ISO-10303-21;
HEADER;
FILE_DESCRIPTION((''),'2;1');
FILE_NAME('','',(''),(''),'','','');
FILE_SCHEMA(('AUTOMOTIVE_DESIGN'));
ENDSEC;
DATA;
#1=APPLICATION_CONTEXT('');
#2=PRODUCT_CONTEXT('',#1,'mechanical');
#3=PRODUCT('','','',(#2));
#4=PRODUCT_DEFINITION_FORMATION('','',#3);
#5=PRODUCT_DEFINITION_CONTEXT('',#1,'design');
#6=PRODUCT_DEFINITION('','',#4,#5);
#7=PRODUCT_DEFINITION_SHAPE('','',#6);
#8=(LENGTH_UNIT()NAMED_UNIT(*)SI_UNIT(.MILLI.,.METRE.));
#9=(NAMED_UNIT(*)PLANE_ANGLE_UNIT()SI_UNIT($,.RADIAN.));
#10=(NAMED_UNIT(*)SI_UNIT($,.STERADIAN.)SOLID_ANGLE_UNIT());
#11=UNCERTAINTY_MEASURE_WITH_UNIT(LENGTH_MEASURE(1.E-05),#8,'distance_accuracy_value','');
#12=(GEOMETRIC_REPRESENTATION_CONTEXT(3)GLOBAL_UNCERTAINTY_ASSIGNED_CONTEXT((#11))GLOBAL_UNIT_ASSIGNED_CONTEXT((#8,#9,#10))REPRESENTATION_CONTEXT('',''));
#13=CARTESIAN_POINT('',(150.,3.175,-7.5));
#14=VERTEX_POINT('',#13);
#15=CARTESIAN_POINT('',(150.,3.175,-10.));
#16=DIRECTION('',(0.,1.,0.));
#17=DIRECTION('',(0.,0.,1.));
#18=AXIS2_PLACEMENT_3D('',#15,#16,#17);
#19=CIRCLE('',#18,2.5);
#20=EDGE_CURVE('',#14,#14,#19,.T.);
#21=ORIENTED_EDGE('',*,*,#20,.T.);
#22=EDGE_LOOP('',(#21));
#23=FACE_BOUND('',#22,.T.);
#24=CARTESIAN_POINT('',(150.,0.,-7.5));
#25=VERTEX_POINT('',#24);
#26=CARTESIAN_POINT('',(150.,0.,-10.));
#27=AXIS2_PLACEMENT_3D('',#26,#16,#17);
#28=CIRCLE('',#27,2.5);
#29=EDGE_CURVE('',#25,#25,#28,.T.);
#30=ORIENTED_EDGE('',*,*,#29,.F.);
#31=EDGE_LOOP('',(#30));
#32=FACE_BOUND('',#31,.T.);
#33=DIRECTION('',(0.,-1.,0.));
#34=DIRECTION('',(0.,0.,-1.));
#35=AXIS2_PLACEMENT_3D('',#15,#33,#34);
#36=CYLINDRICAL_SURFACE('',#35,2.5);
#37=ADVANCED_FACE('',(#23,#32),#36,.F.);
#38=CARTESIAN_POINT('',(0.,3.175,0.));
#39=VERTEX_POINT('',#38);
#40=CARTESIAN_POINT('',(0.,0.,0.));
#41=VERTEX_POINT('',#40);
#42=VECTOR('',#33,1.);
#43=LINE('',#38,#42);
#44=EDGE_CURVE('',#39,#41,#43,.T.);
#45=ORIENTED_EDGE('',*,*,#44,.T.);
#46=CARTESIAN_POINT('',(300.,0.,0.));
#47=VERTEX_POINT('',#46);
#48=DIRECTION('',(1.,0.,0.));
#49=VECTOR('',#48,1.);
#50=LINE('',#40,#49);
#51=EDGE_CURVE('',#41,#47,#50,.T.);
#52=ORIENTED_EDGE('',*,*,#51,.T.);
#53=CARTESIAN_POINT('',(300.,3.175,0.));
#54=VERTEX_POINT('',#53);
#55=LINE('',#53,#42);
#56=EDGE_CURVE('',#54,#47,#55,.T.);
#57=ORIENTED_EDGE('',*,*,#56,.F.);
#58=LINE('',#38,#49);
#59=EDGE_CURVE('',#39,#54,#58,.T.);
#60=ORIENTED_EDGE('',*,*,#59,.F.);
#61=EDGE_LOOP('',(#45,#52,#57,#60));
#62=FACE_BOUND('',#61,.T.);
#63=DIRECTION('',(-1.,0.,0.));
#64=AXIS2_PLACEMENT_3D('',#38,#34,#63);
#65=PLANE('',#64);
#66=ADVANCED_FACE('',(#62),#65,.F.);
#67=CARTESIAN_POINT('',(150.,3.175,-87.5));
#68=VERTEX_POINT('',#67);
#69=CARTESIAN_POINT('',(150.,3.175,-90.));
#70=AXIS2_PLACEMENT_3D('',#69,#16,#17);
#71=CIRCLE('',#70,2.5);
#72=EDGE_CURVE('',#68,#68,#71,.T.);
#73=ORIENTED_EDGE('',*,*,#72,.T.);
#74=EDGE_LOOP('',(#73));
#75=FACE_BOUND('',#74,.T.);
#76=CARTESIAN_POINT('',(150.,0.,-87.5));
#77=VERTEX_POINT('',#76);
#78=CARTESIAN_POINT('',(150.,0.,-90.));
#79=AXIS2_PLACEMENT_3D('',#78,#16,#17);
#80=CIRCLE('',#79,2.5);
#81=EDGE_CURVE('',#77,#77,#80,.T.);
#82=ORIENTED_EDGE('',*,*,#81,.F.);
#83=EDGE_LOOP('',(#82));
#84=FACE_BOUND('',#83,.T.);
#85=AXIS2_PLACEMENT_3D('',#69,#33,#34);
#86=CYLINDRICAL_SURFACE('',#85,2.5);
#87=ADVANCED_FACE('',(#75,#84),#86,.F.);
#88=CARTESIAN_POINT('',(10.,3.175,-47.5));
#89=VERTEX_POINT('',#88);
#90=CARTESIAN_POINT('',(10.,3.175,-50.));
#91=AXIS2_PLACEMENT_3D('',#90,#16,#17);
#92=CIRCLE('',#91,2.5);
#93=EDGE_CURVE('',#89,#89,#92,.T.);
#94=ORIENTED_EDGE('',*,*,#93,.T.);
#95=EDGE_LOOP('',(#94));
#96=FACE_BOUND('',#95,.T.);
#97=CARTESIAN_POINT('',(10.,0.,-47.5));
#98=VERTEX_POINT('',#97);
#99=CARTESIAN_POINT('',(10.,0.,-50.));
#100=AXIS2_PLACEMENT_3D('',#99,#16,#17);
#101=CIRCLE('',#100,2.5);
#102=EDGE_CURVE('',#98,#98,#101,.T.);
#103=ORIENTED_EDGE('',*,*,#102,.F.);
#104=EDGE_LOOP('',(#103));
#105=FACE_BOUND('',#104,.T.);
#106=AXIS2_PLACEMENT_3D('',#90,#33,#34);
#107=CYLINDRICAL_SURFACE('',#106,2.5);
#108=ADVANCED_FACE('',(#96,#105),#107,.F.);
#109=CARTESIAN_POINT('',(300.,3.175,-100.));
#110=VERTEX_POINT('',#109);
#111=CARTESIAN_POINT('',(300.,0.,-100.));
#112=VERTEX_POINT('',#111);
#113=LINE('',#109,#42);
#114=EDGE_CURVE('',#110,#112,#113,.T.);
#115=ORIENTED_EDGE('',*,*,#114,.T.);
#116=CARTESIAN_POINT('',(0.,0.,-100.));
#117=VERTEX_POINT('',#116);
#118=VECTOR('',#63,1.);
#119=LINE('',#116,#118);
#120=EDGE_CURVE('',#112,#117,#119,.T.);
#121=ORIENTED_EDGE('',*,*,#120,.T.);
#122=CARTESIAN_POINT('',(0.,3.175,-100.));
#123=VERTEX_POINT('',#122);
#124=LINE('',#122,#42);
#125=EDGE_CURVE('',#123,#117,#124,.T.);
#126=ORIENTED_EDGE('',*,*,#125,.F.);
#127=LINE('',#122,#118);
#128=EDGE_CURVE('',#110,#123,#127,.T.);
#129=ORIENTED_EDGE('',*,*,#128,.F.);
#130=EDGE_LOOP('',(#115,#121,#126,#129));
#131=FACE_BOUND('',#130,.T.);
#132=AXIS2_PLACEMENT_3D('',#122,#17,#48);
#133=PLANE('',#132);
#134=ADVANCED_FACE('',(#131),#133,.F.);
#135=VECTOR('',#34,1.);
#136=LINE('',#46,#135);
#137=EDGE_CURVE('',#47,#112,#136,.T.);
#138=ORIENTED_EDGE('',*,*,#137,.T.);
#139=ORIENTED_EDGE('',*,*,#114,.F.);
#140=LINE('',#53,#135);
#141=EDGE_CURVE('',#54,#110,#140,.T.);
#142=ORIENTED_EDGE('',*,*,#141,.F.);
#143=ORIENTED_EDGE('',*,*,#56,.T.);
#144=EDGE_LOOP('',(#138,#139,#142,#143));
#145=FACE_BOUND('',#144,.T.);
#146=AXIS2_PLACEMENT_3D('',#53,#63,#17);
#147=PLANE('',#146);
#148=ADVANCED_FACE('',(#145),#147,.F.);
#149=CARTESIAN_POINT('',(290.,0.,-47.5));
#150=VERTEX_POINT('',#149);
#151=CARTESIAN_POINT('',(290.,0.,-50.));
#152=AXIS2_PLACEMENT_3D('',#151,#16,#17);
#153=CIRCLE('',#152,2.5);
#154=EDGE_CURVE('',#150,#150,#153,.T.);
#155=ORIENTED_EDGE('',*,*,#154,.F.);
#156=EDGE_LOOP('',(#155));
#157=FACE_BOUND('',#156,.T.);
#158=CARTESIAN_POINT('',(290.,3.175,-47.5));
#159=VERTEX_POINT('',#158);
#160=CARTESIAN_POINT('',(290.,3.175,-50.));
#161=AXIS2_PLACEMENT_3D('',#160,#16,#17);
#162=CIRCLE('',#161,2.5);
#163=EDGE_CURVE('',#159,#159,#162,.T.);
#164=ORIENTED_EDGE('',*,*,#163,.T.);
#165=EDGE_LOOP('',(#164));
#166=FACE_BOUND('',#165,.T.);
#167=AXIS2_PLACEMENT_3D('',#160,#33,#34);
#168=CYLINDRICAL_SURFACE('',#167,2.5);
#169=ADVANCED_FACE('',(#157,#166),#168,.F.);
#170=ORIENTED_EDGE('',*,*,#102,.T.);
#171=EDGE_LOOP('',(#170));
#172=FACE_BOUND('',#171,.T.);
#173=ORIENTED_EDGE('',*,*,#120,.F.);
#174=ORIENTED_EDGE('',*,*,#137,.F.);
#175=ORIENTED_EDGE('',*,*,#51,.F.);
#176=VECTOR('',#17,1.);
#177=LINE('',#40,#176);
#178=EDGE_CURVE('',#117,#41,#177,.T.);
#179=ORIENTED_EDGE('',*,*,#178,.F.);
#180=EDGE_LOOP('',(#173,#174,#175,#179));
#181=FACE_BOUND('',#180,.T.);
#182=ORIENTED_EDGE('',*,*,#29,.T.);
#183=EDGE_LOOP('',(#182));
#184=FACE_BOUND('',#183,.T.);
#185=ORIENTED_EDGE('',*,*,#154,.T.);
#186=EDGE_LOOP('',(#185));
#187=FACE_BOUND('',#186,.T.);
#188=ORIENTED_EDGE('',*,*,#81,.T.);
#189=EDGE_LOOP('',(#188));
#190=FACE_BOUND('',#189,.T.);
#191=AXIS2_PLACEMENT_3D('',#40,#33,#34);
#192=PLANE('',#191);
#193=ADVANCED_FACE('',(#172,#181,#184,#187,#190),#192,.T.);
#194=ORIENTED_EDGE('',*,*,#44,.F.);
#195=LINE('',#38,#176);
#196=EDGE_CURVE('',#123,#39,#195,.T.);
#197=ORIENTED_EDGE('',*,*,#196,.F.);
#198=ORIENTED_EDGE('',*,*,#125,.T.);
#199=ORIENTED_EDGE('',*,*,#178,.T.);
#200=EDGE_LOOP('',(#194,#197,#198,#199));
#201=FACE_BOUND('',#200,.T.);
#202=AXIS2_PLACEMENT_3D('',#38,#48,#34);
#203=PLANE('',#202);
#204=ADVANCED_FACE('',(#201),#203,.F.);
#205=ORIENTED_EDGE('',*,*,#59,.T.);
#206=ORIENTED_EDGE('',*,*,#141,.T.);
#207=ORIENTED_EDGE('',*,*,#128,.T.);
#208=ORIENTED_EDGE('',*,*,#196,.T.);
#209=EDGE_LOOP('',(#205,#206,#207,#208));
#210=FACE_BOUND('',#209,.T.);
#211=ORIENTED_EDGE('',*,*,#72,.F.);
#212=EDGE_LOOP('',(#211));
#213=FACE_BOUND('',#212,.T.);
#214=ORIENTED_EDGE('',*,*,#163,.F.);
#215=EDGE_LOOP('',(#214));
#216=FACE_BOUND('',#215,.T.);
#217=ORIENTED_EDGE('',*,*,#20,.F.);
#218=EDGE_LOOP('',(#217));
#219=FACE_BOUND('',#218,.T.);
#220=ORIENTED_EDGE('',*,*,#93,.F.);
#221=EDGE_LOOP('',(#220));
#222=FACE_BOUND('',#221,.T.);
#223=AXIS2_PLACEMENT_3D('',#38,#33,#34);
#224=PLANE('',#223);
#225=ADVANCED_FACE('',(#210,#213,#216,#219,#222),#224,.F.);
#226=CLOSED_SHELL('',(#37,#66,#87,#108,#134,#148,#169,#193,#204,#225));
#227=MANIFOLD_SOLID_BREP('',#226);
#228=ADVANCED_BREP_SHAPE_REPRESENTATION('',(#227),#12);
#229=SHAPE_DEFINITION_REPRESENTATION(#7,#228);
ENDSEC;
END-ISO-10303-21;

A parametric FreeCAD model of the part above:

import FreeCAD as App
import Part
import Sketcher


def add_polygon(sketch, points):
    """Adds a closed chain of lines whose ends are joined by coincident constraints."""
    first, n = sketch.GeometryCount, len(points)
    for a, b in zip(points, points[1:] + points[:1]):
        sketch.addGeometry(Part.LineSegment(App.Vector(*a, 0), App.Vector(*b, 0)), False)
    for i in range(n):
        sketch.addConstraint(Sketcher.Constraint("Coincident", first + i, 2, first + (i + 1) % n, 1))

doc = App.newDocument("Part")
body = doc.addObject("PartDesign::Body", "Body")

# Sketch on XZ plane
sketch1 = body.newObject("Sketcher::SketchObject", "Sketch")
sketch1.AttachmentSupport = (doc.getObject("XZ_Plane"), [""])
sketch1.MapMode = "FlatFace"
add_polygon(sketch1, [(0, -100), (0, 0), (300, 0), (300, -100)])  # lines 0-3
sketch1.addGeometry(Part.Circle(App.Vector(150, -10, 0), App.Vector(0, 0, 1), 2.5), False)  # 4
sketch1.addGeometry(Part.Circle(App.Vector(10, -50, 0), App.Vector(0, 0, 1), 2.5), False)  # 5
sketch1.addGeometry(Part.Circle(App.Vector(290, -50, 0), App.Vector(0, 0, 1), 2.5), False)  # 6
sketch1.addGeometry(Part.Circle(App.Vector(150, -90, 0), App.Vector(0, 0, 1), 2.5), False)  # 7
sketch1.addConstraint([
    Sketcher.Constraint("Vertical", 0),
    Sketcher.Constraint("Horizontal", 1),
    Sketcher.Constraint("Vertical", 2),
    Sketcher.Constraint("Horizontal", 3),
    Sketcher.Constraint("Coincident", 0, 2, -1, 1),
    Sketcher.Constraint("Equal", 4, 5),
    Sketcher.Constraint("Equal", 5, 6),
    Sketcher.Constraint("Equal", 6, 7),
    Sketcher.Constraint("Horizontal", 5, 3, 6, 3),
    Sketcher.Constraint("Vertical", 4, 3, 7, 3),
    Sketcher.Constraint("Diameter", 4, 5.0),
    Sketcher.Constraint("DistanceX", 1, 1, 1, 2, 300.0),
    Sketcher.Constraint("DistanceY", 0, 1, 0, 2, 100.0),
    Sketcher.Constraint("DistanceX", -1, 1, 4, 3, 150.0),
    Sketcher.Constraint("DistanceY", 4, 3, -1, 1, 10.0),
    Sketcher.Constraint("DistanceX", -1, 1, 5, 3, 10.0),
    Sketcher.Constraint("DistanceY", 5, 3, -1, 1, 50.0),
    Sketcher.Constraint("DistanceX", -1, 1, 6, 3, 290.0),
    Sketcher.Constraint("DistanceY", 7, 3, -1, 1, 90.0),
])
pad1 = body.newObject("PartDesign::Pad", "Pad")
pad1.Profile = sketch1
pad1.Length = 3.175
pad1.Reversed = True

doc.recompute()
